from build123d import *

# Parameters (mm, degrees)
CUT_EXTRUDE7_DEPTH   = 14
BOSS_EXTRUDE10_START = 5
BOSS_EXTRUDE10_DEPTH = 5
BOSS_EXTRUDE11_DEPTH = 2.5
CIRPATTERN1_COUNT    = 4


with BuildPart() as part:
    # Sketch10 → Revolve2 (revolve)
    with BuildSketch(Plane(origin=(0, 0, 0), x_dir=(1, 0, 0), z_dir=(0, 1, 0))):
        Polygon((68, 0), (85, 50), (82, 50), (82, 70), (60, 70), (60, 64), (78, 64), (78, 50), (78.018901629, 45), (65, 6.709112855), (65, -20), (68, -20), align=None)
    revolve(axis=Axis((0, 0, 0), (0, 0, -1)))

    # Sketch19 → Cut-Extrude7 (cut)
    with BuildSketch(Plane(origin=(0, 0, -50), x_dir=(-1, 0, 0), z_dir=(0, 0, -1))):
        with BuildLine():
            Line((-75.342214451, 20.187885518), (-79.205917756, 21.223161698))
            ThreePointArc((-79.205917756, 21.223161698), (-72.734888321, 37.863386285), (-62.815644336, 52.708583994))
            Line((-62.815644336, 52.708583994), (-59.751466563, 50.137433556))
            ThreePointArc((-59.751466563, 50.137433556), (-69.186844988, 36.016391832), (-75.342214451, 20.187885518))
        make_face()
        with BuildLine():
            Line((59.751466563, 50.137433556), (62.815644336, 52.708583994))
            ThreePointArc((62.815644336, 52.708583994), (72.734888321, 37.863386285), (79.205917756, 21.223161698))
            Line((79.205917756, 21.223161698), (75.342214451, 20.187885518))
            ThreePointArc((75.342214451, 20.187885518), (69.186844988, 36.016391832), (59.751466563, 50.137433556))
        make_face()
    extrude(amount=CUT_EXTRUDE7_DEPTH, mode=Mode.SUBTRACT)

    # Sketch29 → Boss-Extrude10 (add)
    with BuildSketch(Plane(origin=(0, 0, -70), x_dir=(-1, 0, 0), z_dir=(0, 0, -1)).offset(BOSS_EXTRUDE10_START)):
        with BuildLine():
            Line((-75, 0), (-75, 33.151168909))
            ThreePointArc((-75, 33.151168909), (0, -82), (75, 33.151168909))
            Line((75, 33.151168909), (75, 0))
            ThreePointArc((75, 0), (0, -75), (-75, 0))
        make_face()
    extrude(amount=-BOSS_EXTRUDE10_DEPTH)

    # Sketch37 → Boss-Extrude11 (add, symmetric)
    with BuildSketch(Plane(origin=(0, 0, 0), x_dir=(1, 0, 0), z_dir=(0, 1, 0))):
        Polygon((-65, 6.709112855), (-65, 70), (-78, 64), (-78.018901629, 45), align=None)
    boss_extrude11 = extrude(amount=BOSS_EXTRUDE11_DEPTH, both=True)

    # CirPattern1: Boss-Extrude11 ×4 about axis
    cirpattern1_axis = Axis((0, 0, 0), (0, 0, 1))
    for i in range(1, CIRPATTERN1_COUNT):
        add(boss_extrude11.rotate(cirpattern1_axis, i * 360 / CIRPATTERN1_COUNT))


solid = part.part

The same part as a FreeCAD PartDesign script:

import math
import FreeCAD as App
import Part
import Sketcher

V = App.Vector
Q = App.Units.Quantity

doc = App.newDocument("Part")
params = doc.addObject("Spreadsheet::Sheet", "Params")
for row, (alias, value) in enumerate([
    ("sketch1_width", "3 mm"),
    ("sketch1_width2", "22 mm"),
    ("sketch1_width3", "18 mm"),
    ("sketch1_height", "20 mm"),
    ("sketch1_height2", "6 mm"),
    ("revolution_angle", "360 deg"),
    ("sketch2_radius", "78 mm"),
    ("sketch2_radius2", "82 mm"),
    ("pocket1_length", "14 mm"),
    ("sketch3_radius", "82 mm"),
    ("sketch3_radius2", "75 mm"),
    ("pad1_length", "5 mm"),
    ("pad2_length", "5 mm"),
], start=1):
    params.set(f"A{row}", alias)
    params.set(f"B{row}", "=" + value)
    params.setAlias(f"B{row}", alias)

body = doc.addObject("PartDesign::Body", "Body")

# Sketch on XZ plane
sketch1 = body.newObject("Sketcher::SketchObject", "Sketch")
sketch1.AttachmentSupport = (doc.getObject("XZ_Plane"), [""])
sketch1.MapMode = "FlatFace"
sketch1.addGeometry(Part.LineSegment(V(68, 0, 0), V(85, -50, 0)), False)
sketch1.addGeometry(Part.LineSegment(V(85, -50, 0), V(82, -50, 0)), False)
sketch1.addGeometry(Part.LineSegment(V(82, -50, 0), V(82, -70, 0)), False)
sketch1.addGeometry(Part.LineSegment(V(82, -70, 0), V(60, -70, 0)), False)
sketch1.addGeometry(Part.LineSegment(V(60, -70, 0), V(60, -64, 0)), False)
sketch1.addGeometry(Part.LineSegment(V(60, -64, 0), V(78, -64, 0)), False)
sketch1.addGeometry(Part.LineSegment(V(78, -64, 0), V(78, -50, 0)), False)
sketch1.addGeometry(Part.LineSegment(V(78, -50, 0), V(78, -45, 0)), False)
sketch1.addGeometry(Part.LineSegment(V(78, -45, 0), V(65, -6.7, 0)), False)
sketch1.addGeometry(Part.LineSegment(V(65, -6.7, 0), V(65, 20, 0)), False)
sketch1.addGeometry(Part.LineSegment(V(65, 20, 0), V(68, 20, 0)), False)
sketch1.addGeometry(Part.LineSegment(V(68, 20, 0), V(68, 0, 0)), False)
sketch1.addConstraint(Sketcher.Constraint("Coincident", 0, 2, 1, 1))
sketch1.addConstraint(Sketcher.Constraint("Coincident", 1, 2, 2, 1))
sketch1.addConstraint(Sketcher.Constraint("Coincident", 2, 2, 3, 1))
sketch1.addConstraint(Sketcher.Constraint("Coincident", 3, 2, 4, 1))
sketch1.addConstraint(Sketcher.Constraint("Coincident", 4, 2, 5, 1))
sketch1.addConstraint(Sketcher.Constraint("Coincident", 5, 2, 6, 1))
sketch1.addConstraint(Sketcher.Constraint("Coincident", 6, 2, 7, 1))
sketch1.addConstraint(Sketcher.Constraint("Coincident", 7, 2, 8, 1))
sketch1.addConstraint(Sketcher.Constraint("Coincident", 8, 2, 9, 1))
sketch1.addConstraint(Sketcher.Constraint("Coincident", 9, 2, 10, 1))
sketch1.addConstraint(Sketcher.Constraint("Coincident", 10, 2, 11, 1))
sketch1.addConstraint(Sketcher.Constraint("Coincident", 11, 2, 0, 1))
sketch1.addConstraint(Sketcher.Constraint("Horizontal", 1))
sketch1.addConstraint(Sketcher.Constraint("Vertical", 2))
sketch1.addConstraint(Sketcher.Constraint("Horizontal", 3))
sketch1.addConstraint(Sketcher.Constraint("Vertical", 4))
sketch1.addConstraint(Sketcher.Constraint("Horizontal", 5))
sketch1.addConstraint(Sketcher.Constraint("Vertical", 6))
sketch1.addConstraint(Sketcher.Constraint("Vertical", 9))
sketch1.addConstraint(Sketcher.Constraint("Horizontal", 10))
sketch1.addConstraint(Sketcher.Constraint("Vertical", 11))
sketch1.addConstraint(Sketcher.Constraint("PointOnObject", 11, 2, -1))
sketch1.addConstraint(Sketcher.Constraint("Parallel", 0, 8))
sketch1.addConstraint(Sketcher.Constraint("Horizontal", 1, 2, 6, 2))
sketch1.addConstraint(Sketcher.Constraint("Equal", 1, 10))
sketch1.addConstraint(Sketcher.Constraint("Equal", 2, 11))
sketch1.addConstraint(Sketcher.Constraint("DistanceX", 1, 2, 1, 1, Q("3 mm")))
sketch1.addConstraint(Sketcher.Constraint("DistanceX", 3, 2, 3, 1, Q("22 mm")))
sketch1.addConstraint(Sketcher.Constraint("DistanceX", 5, 1, 5, 2, Q("18 mm")))
sketch1.addConstraint(Sketcher.Constraint("DistanceY", 2, 2, 2, 1, Q("20 mm")))
sketch1.addConstraint(Sketcher.Constraint("DistanceY", 4, 1, 4, 2, Q("6 mm")))
sketch1.addConstraint(Sketcher.Constraint("DistanceX", -1, 1, 0, 2, Q("85 mm")))
sketch1.addConstraint(Sketcher.Constraint("DistanceY", 0, 2, -1, 1, Q("50 mm")))
sketch1.addConstraint(Sketcher.Constraint("DistanceY", 7, 2, -1, 1, Q("45 mm")))
sketch1.addConstraint(Sketcher.Constraint("DistanceX", -1, 1, 8, 2, Q("65 mm")))
sketch1.addConstraint(Sketcher.Constraint("DistanceX", -1, 1, 7, 2, Q("78.018902 mm")))
sketch1.setExpression("Constraints[26]", "Params.sketch1_width")
sketch1.setExpression("Constraints[27]", "Params.sketch1_width2")
sketch1.setExpression("Constraints[28]", "Params.sketch1_width3")
sketch1.setExpression("Constraints[29]", "Params.sketch1_height")
sketch1.setExpression("Constraints[30]", "Params.sketch1_height2")
revolution = body.newObject("PartDesign::Revolution", "Revolution")
revolution.Profile = sketch1
revolution.ReferenceAxis = (sketch1, ["V_Axis"])
revolution.setExpression("Angle", "Params.revolution_angle")

# Sketch on XY plane
sketch2 = body.newObject("Sketcher::SketchObject", "Sketch001")
sketch2.AttachmentSupport = (doc.getObject("XY_Plane"), [""])
sketch2.MapMode = "FlatFace"
sketch2.AttachmentOffset = App.Placement(V(0, 0, -50), App.Rotation())
sketch2.addGeometry(Part.LineSegment(V(79.2, 21.2, 0), V(75.3, 20.2, 0)), False)
sketch2.addGeometry(Part.ArcOfCircle(Part.Circle(V(0, 0, 0), V(0, 0, 1), 78), math.radians(15), math.radians(40)), False)
sketch2.addGeometry(Part.LineSegment(V(59.8, 50.1, 0), V(62.8, 52.7, 0)), False)
sketch2.addGeometry(Part.ArcOfCircle(Part.Circle(V(0, 0, 0), V(0, 0, 1), 82), math.radians(15), math.radians(40)), False)
sketch2.addGeometry(Part.LineSegment(V(-62.8, 52.7, 0), V(-59.8, 50.1, 0)), False)
sketch2.addGeometry(Part.ArcOfCircle(Part.Circle(V(0, 0, 0), V(0, 0, 1), 78), math.radians(140), math.radians(165)), False)
sketch2.addGeometry(Part.LineSegment(V(-75.3, 20.2, 0), V(-79.2, 21.2, 0)), False)
sketch2.addGeometry(Part.ArcOfCircle(Part.Circle(V(0, 0, 0), V(0, 0, 1), 82), math.radians(140), math.radians(165)), False)
sketch2.addConstraint(Sketcher.Constraint("Coincident", 0, 2, 1, 1))
sketch2.addConstraint(Sketcher.Constraint("Coincident", 1, 2, 2, 1))
sketch2.addConstraint(Sketcher.Constraint("Coincident", 2, 2, 3, 2))
sketch2.addConstraint(Sketcher.Constraint("Coincident", 3, 1, 0, 1))
sketch2.addConstraint(Sketcher.Constraint("Coincident", 4, 2, 5, 1))
sketch2.addConstraint(Sketcher.Constraint("Coincident", 5, 2, 6, 1))
sketch2.addConstraint(Sketcher.Constraint("Coincident", 6, 2, 7, 2))
sketch2.addConstraint(Sketcher.Constraint("Coincident", 7, 1, 4, 1))
sketch2.addConstraint(Sketcher.Constraint("Coincident", 1, 3, -1, 1))
sketch2.addConstraint(Sketcher.Constraint("Coincident", 3, 3, -1, 1))
sketch2.addConstraint(Sketcher.Constraint("Coincident", 5, 3, -1, 1))
sketch2.addConstraint(Sketcher.Constraint("Coincident", 7, 3, -1, 1))
sketch2.addConstraint(Sketcher.Constraint("Equal", 1, 5))
sketch2.addConstraint(Sketcher.Constraint("Equal", 3, 7))
sketch2.addConstraint(Sketcher.Constraint("Horizontal", 1, 2, 4, 2))
sketch2.addConstraint(Sketcher.Constraint("Horizontal", 0, 2, 5, 2))
sketch2.addConstraint(Sketcher.Constraint("Horizontal", 3, 1, 6, 2))
sketch2.addConstraint(Sketcher.Constraint("Horizontal", 2, 2, 7, 1))
sketch2.addConstraint(Sketcher.Constraint("Radius", 1, Q("78 mm")))
sketch2.addConstraint(Sketcher.Constraint("Radius", 3, Q("82 mm")))
sketch2.addConstraint(Sketcher.Constraint("Angle", 0, Q("-165 deg")))
sketch2.addConstraint(Sketcher.Constraint("Angle", 2, Q("40 deg")))
sketch2.addConstraint(Sketcher.Constraint("DistanceY", 0, 2, 2, 2, Q("32.520698 mm")))
sketch2.addConstraint(Sketcher.Constraint("DistanceY", -1, 1, 3, 1, Q("21.223162 mm")))
sketch2.setExpression("Constraints[18]", "Params.sketch2_radius")
sketch2.setExpression("Constraints[19]", "Params.sketch2_radius2")
pocket1 = body.newObject("PartDesign::Pocket", "Pocket")
pocket1.Profile = sketch2
pocket1.setExpression("Length", "Params.pocket1_length")

# Sketch on XY plane
sketch3 = body.newObject("Sketcher::SketchObject", "Sketch002")
sketch3.AttachmentSupport = (doc.getObject("XY_Plane"), [""])
sketch3.MapMode = "FlatFace"
sketch3.AttachmentOffset = App.Placement(V(0, 0, -75), App.Rotation())
sketch3.addGeometry(Part.LineSegment(V(75, 0, 0), V(75, 33, 0)), False)
sketch3.addGeometry(Part.ArcOfCircle(Part.Circle(V(0, 0, 0), V(0, 0, 1), 82), math.radians(156), math.radians(384)), False)
sketch3.addGeometry(Part.LineSegment(V(-75, 33, 0), V(-75, 0, 0)), False)
sketch3.addGeometry(Part.ArcOfCircle(Part.Circle(V(0, 0, 0), V(0, 0, 1), 75), math.radians(180), math.radians(360)), False)
sketch3.addConstraint(Sketcher.Constraint("Coincident", 0, 2, 1, 2))
sketch3.addConstraint(Sketcher.Constraint("Coincident", 1, 1, 2, 1))
sketch3.addConstraint(Sketcher.Constraint("Tangent", 2, 2, 3, 1))
sketch3.addConstraint(Sketcher.Constraint("Tangent", 3, 2, 0, 1))
sketch3.addConstraint(Sketcher.Constraint("Vertical", 0))
sketch3.addConstraint(Sketcher.Constraint("Vertical", 2))
sketch3.addConstraint(Sketcher.Constraint("Coincident", 1, 3, -1, 1))
sketch3.addConstraint(Sketcher.Constraint("Coincident", 3, 3, -1, 1))
sketch3.addConstraint(Sketcher.Constraint("Radius", 1, Q("82 mm")))
sketch3.addConstraint(Sketcher.Constraint("Radius", 3, Q("75 mm")))
sketch3.setExpression("Constraints[8]", "Params.sketch3_radius")
sketch3.setExpression("Constraints[9]", "Params.sketch3_radius2")
pad1 = body.newObject("PartDesign::Pad", "Pad")
pad1.Profile = sketch3
pad1.setExpression("Length", "Params.pad1_length")

# Sketch on XZ plane
sketch4 = body.newObject("Sketcher::SketchObject", "Sketch003")
sketch4.AttachmentSupport = (doc.getObject("XZ_Plane"), [""])
sketch4.MapMode = "FlatFace"
sketch4.addGeometry(Part.LineSegment(V(-65, -7, 0), V(-65, -70, 0)), False)
sketch4.addGeometry(Part.LineSegment(V(-65, -70, 0), V(-78, -64, 0)), False)
sketch4.addGeometry(Part.LineSegment(V(-78, -64, 0), V(-78, -45, 0)), False)
sketch4.addGeometry(Part.LineSegment(V(-78, -45, 0), V(-65, -7, 0)), False)
sketch4.addConstraint(Sketcher.Constraint("Coincident", 0, 2, 1, 1))
sketch4.addConstraint(Sketcher.Constraint("Coincident", 1, 2, 2, 1))
sketch4.addConstraint(Sketcher.Constraint("Coincident", 2, 2, 3, 1))
sketch4.addConstraint(Sketcher.Constraint("Coincident", 3, 2, 0, 1))
sketch4.addConstraint(Sketcher.Constraint("Vertical", 0))
sketch4.addConstraint(Sketcher.Constraint("DistanceX", 0, 2, -1, 1, Q("65 mm")))
sketch4.addConstraint(Sketcher.Constraint("DistanceY", 0, 2, -1, 1, Q("70 mm")))
sketch4.addConstraint(Sketcher.Constraint("DistanceX", 1, 2, -1, 1, Q("78 mm")))
sketch4.addConstraint(Sketcher.Constraint("DistanceY", 1, 2, -1, 1, Q("64 mm")))
sketch4.addConstraint(Sketcher.Constraint("DistanceY", 2, 2, -1, 1, Q("45 mm")))
sketch4.addConstraint(Sketcher.Constraint("DistanceX", 2, 2, -1, 1, Q("78.018902 mm")))
sketch4.addConstraint(Sketcher.Constraint("Distance", 3, Q("40.443588 mm")))
pad2 = body.newObject("PartDesign::Pad", "Pad001")
pad2.Profile = sketch4
pad2.setExpression("Length", "Params.pad2_length")
pad2.Midplane = True
doc.recompute()

polarpattern = body.newObject("PartDesign::PolarPattern", "PolarPattern")
polarpattern.Originals = [pad2]
polarpattern.Axis = (doc.getObject("Z_Axis"), [""])
polarpattern.Angle = 360
polarpattern.Occurrences = 4
body.Tip = polarpattern

doc.recompute()
